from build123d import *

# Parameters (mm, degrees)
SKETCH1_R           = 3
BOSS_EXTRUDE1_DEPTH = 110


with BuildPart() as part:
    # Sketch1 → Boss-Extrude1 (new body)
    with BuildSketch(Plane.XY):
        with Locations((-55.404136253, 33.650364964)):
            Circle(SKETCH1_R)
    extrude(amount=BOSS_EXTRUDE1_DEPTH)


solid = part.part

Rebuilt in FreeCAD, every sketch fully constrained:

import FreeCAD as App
import Part
import Sketcher
from FreeCAD import Vector

doc = App.newDocument("Part")
params = doc.addObject("Spreadsheet::Sheet", "Params")
for row, (alias, value) in enumerate([
    ("sketch1_diameter", "6 mm"),
    ("pad1_length", "110 mm"),
], start=1):
    params.set(f"A{row}", alias)
    params.set(f"B{row}", "=" + value)
    params.setAlias(f"B{row}", alias)

body = doc.addObject("PartDesign::Body", "Body")

# Sketch on XY plane
sketch1 = doc.addObject("Sketcher::SketchObject", "Sketch")
body.addObject(sketch1)
sketch1.AttachmentSupport = (doc.XY_Plane, [""])
sketch1.MapMode = "FlatFace"
sketch1.addGeometry(Part.Circle(Vector(-55.4, 33.7, 0), Vector(0, 0, 1), 3), False)
sketch1.addConstraint(Sketcher.Constraint("Diameter", 0, 6.0))
sketch1.addConstraint(Sketcher.Constraint("DistanceX", 0, 3, -1, 1, 55.404136))
sketch1.addConstraint(Sketcher.Constraint("DistanceY", -1, 1, 0, 3, 33.650365))
sketch1.setExpression("Constraints[0]", "Params.sketch1_diameter")
pad1 = doc.addObject("PartDesign::Pad", "Pad")
body.addObject(pad1)
pad1.Profile = sketch1
pad1.setExpression("Length", "Params.pad1_length")

doc.recompute()
